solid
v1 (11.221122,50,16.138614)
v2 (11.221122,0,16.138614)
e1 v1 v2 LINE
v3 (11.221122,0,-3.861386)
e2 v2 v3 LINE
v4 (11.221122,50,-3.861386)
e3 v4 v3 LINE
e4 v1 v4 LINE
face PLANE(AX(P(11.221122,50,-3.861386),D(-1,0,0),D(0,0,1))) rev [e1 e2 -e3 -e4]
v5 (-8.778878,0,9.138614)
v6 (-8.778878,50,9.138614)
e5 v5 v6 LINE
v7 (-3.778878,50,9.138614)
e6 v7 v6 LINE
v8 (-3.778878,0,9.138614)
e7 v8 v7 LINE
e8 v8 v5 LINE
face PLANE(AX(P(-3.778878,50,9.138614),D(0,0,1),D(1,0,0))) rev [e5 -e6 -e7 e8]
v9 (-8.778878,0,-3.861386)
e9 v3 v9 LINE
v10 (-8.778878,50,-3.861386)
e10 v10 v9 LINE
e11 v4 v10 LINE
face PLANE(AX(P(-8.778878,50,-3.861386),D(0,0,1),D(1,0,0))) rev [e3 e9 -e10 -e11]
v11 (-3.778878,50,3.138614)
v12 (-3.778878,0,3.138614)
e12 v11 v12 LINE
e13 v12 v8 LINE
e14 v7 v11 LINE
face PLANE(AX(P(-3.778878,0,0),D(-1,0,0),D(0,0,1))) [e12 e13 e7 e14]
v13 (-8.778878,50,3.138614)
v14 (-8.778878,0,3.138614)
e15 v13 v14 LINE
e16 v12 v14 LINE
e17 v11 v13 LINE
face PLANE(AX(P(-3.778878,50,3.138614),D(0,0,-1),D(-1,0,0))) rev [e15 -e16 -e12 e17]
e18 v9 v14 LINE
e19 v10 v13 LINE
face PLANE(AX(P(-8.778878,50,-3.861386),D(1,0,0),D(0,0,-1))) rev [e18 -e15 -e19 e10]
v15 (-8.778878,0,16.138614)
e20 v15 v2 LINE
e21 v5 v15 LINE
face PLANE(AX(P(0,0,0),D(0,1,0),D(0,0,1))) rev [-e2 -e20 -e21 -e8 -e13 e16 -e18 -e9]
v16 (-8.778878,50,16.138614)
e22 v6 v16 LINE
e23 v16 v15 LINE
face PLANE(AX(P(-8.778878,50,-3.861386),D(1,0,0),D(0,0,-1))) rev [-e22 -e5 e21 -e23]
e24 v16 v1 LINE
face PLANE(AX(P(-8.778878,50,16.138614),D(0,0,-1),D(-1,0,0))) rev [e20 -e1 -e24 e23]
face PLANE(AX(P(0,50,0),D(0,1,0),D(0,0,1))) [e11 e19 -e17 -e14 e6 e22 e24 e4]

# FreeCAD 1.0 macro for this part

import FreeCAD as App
import Part
import Sketcher
Q = App.Units.Quantity

doc = App.newDocument("Part")
body = doc.addObject("PartDesign::Body", "Body")

# Sketch on XZ plane
sketch1 = body.newObject("Sketcher::SketchObject", "Sketch")
sketch1.AttachmentSupport = (doc.getObject("XZ_Plane"), [""])
sketch1.MapMode = "FlatFace"
sketch1.addGeometry([
    Part.LineSegment(App.Vector(-9, -4, 0), App.Vector(-9, 16, 0)),
    Part.LineSegment(App.Vector(-9, 16, 0), App.Vector(11, 16, 0)),
    Part.LineSegment(App.Vector(11, 16, 0), App.Vector(11, -4, 0)),
    Part.LineSegment(App.Vector(11, -4, 0), App.Vector(-9, -4, 0)),
], False)
sketch1.addConstraint([
    Sketcher.Constraint("Coincident", 0, 2, 1, 1),
    Sketcher.Constraint("Coincident", 1, 2, 2, 1),
    Sketcher.Constraint("Coincident", 2, 2, 3, 1),
    Sketcher.Constraint("Coincident", 3, 2, 0, 1),
    Sketcher.Constraint("Vertical", 0),
    Sketcher.Constraint("Horizontal", 1),
    Sketcher.Constraint("Vertical", 2),
    Sketcher.Constraint("Horizontal", 3),
    Sketcher.Constraint("Equal", 3, 0),
    Sketcher.Constraint("DistanceX", 1, 1, 1, 2, Q("20 mm")),
    Sketcher.Constraint("DistanceX", 0, 2, -1, 1, Q("8.778878 mm")),
    Sketcher.Constraint("DistanceY", -1, 1, 0, 2, Q("16.138614 mm")),
])
pad1 = body.newObject("PartDesign::Pad", "Pad")
pad1.Profile = sketch1
pad1.Length = 50
pad1.Reversed = True

# Sketch on YZ plane
sketch2 = body.newObject("Sketcher::SketchObject", "Sketch001")
sketch2.AttachmentSupport = (doc.getObject("YZ_Plane"), [""])
sketch2.MapMode = "FlatFace"
sketch2.AttachmentOffset = App.Placement(App.Vector(0, 0, -8.778878), App.Rotation())
sketch2.addGeometry([
    Part.LineSegment(App.Vector(50, 3, 0), App.Vector(0, 3, 0)),
    Part.LineSegment(App.Vector(0, 3, 0), App.Vector(0, 9, 0)),
    Part.LineSegment(App.Vector(0, 9, 0), App.Vector(50, 9, 0)),
    Part.LineSegment(App.Vector(50, 9, 0), App.Vector(50, 3, 0)),
], False)
sketch2.addConstraint([
    Sketcher.Constraint("Coincident", 0, 2, 1, 1),
    Sketcher.Constraint("Coincident", 1, 2, 2, 1),
    Sketcher.Constraint("Coincident", 2, 2, 3, 1),
    Sketcher.Constraint("Coincident", 3, 2, 0, 1),
    Sketcher.Constraint("Horizontal", 0),
    Sketcher.Constraint("Vertical", 1),
    Sketcher.Constraint("Horizontal", 2),
    Sketcher.Constraint("Vertical", 3),
    Sketcher.Constraint("PointOnObject", 0, 2, -2),
    Sketcher.Constraint("DistanceX", 0, 2, 0, 1, Q("50 mm")),
    Sketcher.Constraint("DistanceY", 1, 1, 1, 2, Q("6 mm")),
    Sketcher.Constraint("DistanceY", -1, 1, 0, 2, Q("3.138614 mm")),
])
pocket1 = body.newObject("PartDesign::Pocket", "Pocket")
pocket1.Profile = sketch2
pocket1.Length = 5
pocket1.Reversed = True

doc.recompute()
